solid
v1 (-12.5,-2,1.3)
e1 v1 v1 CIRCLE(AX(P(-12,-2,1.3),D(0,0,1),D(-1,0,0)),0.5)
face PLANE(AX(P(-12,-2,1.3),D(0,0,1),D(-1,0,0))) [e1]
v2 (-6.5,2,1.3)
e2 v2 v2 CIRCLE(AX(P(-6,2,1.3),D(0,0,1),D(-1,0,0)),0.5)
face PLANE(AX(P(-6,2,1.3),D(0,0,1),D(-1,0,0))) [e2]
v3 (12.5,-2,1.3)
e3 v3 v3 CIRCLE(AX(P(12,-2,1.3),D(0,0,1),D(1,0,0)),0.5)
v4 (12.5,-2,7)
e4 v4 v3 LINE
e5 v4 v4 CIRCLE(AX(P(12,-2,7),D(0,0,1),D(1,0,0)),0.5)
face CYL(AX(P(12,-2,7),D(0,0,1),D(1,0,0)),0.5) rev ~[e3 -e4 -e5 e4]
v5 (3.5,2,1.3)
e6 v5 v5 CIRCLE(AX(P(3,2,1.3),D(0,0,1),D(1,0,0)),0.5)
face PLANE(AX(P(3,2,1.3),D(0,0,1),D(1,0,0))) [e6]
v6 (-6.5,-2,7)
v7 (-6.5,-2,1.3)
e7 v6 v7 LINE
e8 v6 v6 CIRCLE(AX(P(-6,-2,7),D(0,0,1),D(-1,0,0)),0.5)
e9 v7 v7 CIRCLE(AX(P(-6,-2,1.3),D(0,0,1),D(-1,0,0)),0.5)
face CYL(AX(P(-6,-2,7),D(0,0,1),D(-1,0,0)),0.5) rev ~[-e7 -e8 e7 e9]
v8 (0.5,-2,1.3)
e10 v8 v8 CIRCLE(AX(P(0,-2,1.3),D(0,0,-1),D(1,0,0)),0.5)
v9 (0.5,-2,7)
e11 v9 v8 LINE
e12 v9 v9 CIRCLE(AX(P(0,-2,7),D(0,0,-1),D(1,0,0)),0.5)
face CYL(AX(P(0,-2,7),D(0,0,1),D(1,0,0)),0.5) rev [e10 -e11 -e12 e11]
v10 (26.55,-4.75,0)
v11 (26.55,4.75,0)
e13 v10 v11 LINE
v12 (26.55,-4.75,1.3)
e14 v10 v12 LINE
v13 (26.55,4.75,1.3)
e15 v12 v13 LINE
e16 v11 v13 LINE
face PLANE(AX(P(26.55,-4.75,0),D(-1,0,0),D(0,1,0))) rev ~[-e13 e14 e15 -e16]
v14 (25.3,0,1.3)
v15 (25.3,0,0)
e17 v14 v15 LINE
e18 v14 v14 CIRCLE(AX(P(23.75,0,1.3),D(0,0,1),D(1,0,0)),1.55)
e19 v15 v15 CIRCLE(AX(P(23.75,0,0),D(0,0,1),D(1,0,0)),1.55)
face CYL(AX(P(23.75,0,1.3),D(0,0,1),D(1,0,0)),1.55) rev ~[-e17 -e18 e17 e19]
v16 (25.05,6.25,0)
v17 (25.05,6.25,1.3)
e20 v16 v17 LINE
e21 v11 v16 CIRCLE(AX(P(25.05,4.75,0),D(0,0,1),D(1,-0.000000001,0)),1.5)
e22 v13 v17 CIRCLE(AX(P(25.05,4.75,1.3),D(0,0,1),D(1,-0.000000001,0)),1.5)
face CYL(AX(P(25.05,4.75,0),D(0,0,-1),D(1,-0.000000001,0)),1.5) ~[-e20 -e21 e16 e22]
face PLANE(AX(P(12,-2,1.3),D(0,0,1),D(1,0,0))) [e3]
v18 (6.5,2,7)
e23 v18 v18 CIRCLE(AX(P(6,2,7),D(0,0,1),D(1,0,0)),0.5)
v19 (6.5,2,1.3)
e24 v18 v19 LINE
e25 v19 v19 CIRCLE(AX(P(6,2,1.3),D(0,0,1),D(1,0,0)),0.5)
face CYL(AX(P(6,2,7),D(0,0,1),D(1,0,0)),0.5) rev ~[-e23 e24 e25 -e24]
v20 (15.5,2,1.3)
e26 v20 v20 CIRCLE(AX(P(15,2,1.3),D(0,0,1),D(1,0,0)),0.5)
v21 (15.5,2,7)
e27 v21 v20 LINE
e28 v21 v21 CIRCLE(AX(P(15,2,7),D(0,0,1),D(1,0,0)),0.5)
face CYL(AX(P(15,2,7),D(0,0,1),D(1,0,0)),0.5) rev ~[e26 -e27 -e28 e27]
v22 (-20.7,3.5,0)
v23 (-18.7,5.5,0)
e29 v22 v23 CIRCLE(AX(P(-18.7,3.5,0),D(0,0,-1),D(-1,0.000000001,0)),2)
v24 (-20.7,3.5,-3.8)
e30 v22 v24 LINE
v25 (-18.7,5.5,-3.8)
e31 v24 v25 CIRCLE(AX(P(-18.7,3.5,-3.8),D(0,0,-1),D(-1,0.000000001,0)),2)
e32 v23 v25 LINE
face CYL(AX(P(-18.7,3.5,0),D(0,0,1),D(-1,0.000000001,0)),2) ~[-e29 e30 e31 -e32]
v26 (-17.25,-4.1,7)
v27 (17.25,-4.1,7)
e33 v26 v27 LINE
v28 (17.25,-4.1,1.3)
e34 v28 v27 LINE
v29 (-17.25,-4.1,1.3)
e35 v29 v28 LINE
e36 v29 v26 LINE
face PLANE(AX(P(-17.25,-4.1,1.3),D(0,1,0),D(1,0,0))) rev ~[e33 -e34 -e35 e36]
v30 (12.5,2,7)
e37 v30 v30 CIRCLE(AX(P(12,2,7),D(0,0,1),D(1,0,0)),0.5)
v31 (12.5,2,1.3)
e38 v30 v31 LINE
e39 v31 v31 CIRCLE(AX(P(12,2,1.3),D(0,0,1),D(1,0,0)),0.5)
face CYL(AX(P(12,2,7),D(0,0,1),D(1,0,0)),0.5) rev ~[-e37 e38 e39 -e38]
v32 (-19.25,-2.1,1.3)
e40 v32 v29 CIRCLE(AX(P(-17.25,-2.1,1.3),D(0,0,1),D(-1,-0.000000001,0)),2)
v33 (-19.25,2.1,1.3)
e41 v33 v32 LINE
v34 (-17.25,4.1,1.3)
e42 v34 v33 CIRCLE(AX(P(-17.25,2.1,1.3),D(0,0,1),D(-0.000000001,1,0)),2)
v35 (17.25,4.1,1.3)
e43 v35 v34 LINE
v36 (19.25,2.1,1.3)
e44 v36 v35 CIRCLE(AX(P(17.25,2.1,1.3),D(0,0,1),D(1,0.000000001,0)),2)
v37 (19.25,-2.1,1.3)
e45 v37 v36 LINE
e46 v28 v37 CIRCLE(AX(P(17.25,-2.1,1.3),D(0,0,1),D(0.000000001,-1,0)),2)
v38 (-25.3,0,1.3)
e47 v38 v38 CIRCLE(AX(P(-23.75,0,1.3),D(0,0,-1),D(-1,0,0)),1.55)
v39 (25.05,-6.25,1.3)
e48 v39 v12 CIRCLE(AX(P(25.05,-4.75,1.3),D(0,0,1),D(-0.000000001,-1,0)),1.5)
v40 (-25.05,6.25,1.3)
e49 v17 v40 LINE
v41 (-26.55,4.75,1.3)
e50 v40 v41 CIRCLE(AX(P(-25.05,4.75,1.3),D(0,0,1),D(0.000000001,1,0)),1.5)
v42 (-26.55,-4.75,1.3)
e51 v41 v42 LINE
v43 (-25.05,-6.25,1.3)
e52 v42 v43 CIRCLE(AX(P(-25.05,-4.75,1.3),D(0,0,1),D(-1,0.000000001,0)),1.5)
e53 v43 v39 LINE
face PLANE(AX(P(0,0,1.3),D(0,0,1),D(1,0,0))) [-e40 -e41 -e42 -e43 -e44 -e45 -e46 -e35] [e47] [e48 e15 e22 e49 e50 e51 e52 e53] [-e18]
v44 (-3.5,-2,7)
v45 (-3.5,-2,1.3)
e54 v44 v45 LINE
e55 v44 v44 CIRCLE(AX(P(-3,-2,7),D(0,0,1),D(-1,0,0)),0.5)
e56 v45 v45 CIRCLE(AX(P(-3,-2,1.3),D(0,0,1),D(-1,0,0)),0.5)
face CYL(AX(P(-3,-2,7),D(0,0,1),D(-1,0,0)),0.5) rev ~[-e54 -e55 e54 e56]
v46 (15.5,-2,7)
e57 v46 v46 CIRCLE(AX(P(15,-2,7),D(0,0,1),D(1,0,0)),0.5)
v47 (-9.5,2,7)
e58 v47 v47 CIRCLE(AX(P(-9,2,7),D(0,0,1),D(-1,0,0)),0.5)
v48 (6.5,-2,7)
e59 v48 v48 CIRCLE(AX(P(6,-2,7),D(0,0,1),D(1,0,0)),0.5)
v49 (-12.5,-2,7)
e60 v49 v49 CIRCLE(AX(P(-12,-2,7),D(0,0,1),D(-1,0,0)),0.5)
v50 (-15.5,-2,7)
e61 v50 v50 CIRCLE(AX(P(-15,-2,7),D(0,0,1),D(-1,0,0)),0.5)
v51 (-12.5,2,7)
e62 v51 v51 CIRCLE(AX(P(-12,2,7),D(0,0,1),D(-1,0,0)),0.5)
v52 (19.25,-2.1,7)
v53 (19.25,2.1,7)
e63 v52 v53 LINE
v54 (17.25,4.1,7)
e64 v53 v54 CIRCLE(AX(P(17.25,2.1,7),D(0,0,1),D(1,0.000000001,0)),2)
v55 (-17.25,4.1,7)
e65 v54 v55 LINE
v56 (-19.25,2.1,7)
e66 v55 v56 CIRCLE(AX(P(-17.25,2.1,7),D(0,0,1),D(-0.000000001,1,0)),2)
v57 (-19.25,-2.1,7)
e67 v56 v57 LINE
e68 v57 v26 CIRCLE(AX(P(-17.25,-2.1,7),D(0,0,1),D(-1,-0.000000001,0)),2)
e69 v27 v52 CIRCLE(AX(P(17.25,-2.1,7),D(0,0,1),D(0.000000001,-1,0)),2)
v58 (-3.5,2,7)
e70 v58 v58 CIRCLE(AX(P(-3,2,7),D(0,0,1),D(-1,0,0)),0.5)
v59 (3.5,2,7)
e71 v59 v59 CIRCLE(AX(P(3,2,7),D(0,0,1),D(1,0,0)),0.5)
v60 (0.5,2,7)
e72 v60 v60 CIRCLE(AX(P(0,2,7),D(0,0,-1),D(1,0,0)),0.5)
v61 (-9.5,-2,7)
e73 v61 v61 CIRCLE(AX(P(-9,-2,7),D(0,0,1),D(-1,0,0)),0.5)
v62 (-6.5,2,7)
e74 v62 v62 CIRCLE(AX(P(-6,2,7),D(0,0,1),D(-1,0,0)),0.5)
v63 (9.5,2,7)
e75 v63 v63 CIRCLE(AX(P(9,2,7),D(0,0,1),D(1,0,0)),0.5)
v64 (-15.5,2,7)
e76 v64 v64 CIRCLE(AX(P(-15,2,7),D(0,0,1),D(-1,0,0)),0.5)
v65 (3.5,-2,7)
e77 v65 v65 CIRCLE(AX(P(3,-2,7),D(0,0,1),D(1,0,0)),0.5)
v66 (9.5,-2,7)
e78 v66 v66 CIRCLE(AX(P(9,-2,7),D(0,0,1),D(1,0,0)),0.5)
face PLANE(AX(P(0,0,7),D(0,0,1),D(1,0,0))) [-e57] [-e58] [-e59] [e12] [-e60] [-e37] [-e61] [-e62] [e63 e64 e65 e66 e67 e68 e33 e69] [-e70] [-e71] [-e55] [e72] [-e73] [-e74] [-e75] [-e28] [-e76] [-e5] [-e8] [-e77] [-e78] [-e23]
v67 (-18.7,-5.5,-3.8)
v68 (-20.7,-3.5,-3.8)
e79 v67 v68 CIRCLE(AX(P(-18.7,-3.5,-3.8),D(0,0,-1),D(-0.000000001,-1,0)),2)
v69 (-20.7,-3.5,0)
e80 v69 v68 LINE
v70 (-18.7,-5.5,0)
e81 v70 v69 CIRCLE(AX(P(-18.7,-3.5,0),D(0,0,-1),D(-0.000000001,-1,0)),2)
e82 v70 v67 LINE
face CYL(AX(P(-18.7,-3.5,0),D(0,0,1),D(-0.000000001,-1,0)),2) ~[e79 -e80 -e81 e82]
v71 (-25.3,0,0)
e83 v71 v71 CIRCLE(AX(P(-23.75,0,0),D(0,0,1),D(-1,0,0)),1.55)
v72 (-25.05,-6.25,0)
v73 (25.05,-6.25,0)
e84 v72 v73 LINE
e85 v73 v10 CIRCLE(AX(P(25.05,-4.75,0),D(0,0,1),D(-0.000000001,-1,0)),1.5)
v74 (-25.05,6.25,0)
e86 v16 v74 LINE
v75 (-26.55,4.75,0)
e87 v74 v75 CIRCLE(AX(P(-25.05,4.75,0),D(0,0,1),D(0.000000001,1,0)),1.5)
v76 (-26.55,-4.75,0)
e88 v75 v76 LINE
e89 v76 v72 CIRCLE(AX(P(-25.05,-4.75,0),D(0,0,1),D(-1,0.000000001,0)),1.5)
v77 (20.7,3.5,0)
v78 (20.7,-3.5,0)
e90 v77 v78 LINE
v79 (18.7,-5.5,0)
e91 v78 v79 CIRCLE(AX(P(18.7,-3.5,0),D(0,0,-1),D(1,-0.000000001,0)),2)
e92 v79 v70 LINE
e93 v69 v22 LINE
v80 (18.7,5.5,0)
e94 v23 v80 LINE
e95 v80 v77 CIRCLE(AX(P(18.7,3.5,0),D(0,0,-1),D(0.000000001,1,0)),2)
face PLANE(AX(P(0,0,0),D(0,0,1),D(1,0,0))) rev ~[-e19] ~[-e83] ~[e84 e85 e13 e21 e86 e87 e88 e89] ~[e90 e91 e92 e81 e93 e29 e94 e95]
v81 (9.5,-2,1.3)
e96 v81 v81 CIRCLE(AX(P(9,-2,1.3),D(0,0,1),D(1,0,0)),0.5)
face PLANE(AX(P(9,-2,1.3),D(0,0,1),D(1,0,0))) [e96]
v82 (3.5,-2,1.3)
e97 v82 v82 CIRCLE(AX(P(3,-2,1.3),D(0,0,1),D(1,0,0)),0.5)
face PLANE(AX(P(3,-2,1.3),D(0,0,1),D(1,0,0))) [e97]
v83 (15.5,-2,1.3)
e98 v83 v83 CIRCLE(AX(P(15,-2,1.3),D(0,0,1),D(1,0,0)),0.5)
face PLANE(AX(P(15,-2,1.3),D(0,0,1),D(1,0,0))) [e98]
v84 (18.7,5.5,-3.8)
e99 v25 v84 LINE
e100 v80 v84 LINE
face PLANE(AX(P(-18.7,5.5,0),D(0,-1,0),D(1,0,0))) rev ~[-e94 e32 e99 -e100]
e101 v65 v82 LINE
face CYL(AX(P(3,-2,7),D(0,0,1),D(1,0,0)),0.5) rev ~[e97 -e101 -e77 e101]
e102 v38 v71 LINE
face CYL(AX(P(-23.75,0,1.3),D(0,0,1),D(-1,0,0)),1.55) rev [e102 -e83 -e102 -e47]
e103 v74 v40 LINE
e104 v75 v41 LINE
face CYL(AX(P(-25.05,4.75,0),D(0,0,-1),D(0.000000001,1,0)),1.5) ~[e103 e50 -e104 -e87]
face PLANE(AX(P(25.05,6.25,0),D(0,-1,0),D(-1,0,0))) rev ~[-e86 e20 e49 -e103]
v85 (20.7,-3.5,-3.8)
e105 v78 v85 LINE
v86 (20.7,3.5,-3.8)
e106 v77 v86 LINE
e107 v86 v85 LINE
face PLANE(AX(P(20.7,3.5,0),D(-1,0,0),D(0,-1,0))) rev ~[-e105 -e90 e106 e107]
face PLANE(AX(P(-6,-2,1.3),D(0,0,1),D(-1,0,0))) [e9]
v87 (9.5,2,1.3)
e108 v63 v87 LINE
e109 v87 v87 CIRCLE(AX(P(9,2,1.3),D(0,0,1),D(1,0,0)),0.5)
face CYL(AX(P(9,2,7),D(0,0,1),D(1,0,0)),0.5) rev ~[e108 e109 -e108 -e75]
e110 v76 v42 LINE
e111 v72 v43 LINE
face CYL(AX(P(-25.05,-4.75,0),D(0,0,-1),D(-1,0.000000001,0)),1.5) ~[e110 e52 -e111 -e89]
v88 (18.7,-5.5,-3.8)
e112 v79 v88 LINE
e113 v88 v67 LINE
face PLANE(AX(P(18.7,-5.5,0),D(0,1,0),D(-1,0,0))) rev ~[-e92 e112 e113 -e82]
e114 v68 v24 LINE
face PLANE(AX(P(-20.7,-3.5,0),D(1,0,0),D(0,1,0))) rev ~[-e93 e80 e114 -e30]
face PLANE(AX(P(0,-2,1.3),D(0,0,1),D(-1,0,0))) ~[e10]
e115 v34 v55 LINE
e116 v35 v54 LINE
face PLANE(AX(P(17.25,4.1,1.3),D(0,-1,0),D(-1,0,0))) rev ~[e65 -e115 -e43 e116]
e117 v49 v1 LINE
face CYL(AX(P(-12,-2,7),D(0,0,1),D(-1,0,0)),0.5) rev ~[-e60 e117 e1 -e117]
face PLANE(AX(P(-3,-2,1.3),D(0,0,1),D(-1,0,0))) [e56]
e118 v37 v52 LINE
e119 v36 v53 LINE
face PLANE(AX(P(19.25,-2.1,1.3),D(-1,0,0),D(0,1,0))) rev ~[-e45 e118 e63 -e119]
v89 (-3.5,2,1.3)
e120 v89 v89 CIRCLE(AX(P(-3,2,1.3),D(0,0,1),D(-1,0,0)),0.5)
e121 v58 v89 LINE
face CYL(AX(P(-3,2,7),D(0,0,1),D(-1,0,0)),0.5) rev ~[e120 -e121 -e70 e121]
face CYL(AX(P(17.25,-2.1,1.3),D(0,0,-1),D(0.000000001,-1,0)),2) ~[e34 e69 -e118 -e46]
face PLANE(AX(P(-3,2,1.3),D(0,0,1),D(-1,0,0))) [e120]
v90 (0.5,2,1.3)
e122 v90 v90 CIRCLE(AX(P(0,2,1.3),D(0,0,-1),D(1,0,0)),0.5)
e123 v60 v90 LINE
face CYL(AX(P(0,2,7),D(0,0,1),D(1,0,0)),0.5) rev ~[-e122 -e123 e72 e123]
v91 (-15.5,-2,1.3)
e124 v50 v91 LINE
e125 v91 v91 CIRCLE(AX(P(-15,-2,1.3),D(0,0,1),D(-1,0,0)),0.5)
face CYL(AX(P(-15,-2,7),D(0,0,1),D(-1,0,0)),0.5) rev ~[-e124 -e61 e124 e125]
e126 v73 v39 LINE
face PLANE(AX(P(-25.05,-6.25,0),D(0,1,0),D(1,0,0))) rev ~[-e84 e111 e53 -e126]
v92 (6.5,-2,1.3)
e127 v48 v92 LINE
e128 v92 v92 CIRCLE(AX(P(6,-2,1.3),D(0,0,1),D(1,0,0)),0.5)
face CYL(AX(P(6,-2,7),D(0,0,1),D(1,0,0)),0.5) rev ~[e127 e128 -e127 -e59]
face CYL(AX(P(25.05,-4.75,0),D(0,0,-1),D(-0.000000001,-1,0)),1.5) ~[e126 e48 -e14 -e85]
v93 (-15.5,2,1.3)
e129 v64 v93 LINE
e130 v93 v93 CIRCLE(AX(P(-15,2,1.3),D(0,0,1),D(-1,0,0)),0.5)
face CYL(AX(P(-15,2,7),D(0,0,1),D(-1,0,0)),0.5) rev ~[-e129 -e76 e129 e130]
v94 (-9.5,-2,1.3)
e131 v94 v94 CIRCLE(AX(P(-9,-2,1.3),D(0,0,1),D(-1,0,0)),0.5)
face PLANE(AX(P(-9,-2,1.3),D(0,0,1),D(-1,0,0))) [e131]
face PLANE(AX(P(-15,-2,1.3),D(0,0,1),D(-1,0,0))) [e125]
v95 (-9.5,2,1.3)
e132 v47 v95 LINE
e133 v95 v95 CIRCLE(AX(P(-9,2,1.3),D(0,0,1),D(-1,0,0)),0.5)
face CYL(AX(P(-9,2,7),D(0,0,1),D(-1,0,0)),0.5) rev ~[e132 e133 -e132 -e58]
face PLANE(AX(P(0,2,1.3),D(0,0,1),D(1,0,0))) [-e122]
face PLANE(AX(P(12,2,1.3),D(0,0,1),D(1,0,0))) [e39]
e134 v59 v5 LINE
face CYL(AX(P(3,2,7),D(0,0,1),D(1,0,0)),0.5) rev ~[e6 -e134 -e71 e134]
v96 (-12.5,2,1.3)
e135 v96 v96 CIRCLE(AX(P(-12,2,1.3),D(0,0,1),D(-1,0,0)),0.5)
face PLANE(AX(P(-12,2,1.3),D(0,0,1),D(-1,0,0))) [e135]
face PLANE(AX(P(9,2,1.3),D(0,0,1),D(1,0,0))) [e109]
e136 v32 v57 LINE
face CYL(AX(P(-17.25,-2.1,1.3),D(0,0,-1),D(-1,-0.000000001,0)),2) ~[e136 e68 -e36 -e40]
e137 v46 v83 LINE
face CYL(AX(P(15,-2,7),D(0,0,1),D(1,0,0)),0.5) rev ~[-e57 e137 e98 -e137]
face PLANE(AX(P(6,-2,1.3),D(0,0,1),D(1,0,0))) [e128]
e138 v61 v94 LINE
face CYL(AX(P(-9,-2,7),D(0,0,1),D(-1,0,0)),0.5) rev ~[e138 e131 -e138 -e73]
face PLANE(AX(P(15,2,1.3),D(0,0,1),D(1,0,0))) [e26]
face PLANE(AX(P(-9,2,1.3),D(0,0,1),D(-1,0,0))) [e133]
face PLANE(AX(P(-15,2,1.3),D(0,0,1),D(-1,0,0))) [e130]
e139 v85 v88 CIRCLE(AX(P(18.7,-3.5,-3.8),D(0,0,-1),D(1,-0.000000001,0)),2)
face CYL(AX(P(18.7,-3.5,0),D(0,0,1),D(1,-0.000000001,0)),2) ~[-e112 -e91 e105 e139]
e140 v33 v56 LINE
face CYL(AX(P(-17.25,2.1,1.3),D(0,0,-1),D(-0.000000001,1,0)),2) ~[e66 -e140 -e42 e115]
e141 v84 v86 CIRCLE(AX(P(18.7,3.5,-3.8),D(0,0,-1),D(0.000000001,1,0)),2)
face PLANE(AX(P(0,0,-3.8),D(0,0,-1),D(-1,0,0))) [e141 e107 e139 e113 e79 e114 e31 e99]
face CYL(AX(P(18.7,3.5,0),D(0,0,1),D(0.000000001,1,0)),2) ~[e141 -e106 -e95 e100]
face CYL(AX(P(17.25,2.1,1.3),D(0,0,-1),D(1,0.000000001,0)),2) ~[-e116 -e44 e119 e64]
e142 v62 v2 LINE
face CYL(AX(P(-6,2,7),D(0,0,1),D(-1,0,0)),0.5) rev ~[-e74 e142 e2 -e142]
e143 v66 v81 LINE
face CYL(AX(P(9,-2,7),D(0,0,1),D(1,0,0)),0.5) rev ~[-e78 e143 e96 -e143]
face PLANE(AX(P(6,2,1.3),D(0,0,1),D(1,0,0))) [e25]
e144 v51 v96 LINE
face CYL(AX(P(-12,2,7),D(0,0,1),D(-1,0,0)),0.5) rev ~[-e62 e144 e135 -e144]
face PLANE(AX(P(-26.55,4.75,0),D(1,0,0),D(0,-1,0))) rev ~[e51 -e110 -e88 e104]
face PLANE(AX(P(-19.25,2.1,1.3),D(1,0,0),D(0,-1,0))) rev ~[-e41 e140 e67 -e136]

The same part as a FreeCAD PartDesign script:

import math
import FreeCAD as App
import Part
import Sketcher
Q = App.Units.Quantity

doc = App.newDocument("Part")
params = doc.addObject("Spreadsheet::Sheet", "Params")
for row, (alias, value) in enumerate([
    ("sketch1_radius", "1.5 mm"),
    ("sketch1_width", "50.1 mm"),
    ("sketch1_height", "9.5 mm"),
    ("pad1_length", "1.3 mm"),
    ("sketch2_radius", "2 mm"),
    ("sketch2_height", "7 mm"),
    ("sketch2_width", "37.4 mm"),
    ("pad2_length", "3.8 mm"),
    ("sketch3_radius", "2 mm"),
    ("sketch3_width", "34.5 mm"),
    ("sketch3_height", "4.2 mm"),
    ("pad3_length", "5.7 mm"),
    ("sketch4_diameter", "1 mm"),
    ("pocket1_length", "5.7 mm"),
    ("linearpattern_pitch", "3 mm"),
    ("sketch5_diameter", "1 mm"),
    ("pocket2_length", "5.7 mm"),
    ("sketch6_diameter", "1 mm"),
    ("pocket3_length", "5.7 mm"),
    ("sketch7_diameter", "1 mm"),
    ("pocket4_length", "5.7 mm"),
    ("sketch8_diameter", "1 mm"),
    ("pocket5_length", "5.7 mm"),
    ("sketch9_diameter", "1 mm"),
    ("pocket6_length", "5.7 mm"),
    ("sketch10_diameter", "1 mm"),
    ("pocket7_length", "5.7 mm"),
    ("sketch11_diameter", "1 mm"),
    ("pocket8_length", "5.7 mm"),
    ("sketch12_diameter", "1 mm"),
    ("pocket9_length", "5.7 mm"),
    ("sketch13_diameter", "1 mm"),
    ("pocket10_length", "5.7 mm"),
    ("sketch14_diameter", "1 mm"),
    ("pocket11_length", "5.7 mm"),
    ("sketch15_diameter", "1 mm"),
    ("pocket12_length", "5.7 mm"),
    ("sketch16_diameter", "1 mm"),
    ("pocket13_length", "5.7 mm"),
    ("sketch17_diameter", "1 mm"),
    ("pocket14_length", "5.7 mm"),
    ("sketch18_diameter", "1 mm"),
    ("pocket15_length", "5.7 mm"),
    ("sketch19_diameter", "1 mm"),
    ("pocket16_length", "5.7 mm"),
    ("sketch20_diameter", "1 mm"),
    ("pocket17_length", "5.7 mm"),
    ("sketch21_diameter", "1 mm"),
    ("pocket18_length", "5.7 mm"),
    ("sketch22_diameter", "1 mm"),
    ("pocket19_length", "5.7 mm"),
    ("sketch23_diameter", "3.1 mm"),
], start=1):
    params.set(f"A{row}", alias)
    params.set(f"B{row}", "=" + value)
    params.setAlias(f"B{row}", alias)

body = doc.addObject("PartDesign::Body", "Body")

# Sketch on XY plane
sketch1 = doc.addObject("Sketcher::SketchObject", "Sketch")
body.addObject(sketch1)
sketch1.AttachmentSupport = (doc.XY_Plane, [""])
sketch1.MapMode = "FlatFace"
sketch1.addGeometry([
    Part.LineSegment(App.Vector(-25.1, -6.2, 0), App.Vector(25.1, -6.2, 0)),  # 0
    Part.ArcOfCircle(Part.Circle(App.Vector(25.1, -4.8, 0), App.Vector(0, 0, 1), 1.5), math.radians(-90), math.radians(0)),  # 1
    Part.LineSegment(App.Vector(26.6, -4.8, 0), App.Vector(26.6, 4.8, 0)),  # 2
    Part.ArcOfCircle(Part.Circle(App.Vector(25.1, 4.8, 0), App.Vector(0, 0, 1), 1.5), math.radians(0), math.radians(90)),  # 3
    Part.LineSegment(App.Vector(25.1, 6.2, 0), App.Vector(-25.1, 6.2, 0)),  # 4
    Part.ArcOfCircle(Part.Circle(App.Vector(-25.1, 4.8, 0), App.Vector(0, 0, 1), 1.5), math.radians(90), math.radians(180)),  # 5
    Part.LineSegment(App.Vector(-26.6, 4.8, 0), App.Vector(-26.6, -4.8, 0)),  # 6
    Part.ArcOfCircle(Part.Circle(App.Vector(-25.1, -4.8, 0), App.Vector(0, 0, 1), 1.5), math.radians(180), math.radians(270)),  # 7
], False)
sketch1.addConstraint([
    Sketcher.Constraint("Tangent", 0, 2, 1, 1),
    Sketcher.Constraint("Tangent", 1, 2, 2, 1),
    Sketcher.Constraint("Tangent", 2, 2, 3, 1),
    Sketcher.Constraint("Tangent", 3, 2, 4, 1),
    Sketcher.Constraint("Tangent", 4, 2, 5, 1),
    Sketcher.Constraint("Tangent", 5, 2, 6, 1),
    Sketcher.Constraint("Tangent", 6, 2, 7, 1),
    Sketcher.Constraint("Tangent", 7, 2, 0, 1),
    Sketcher.Constraint("Horizontal", 0),
    Sketcher.Constraint("Vertical", 2),
    Sketcher.Constraint("Horizontal", 4),
    Sketcher.Constraint("Vertical", 6),
    Sketcher.Constraint("Equal", 1, 3),
    Sketcher.Constraint("Equal", 3, 5),
    Sketcher.Constraint("Equal", 5, 7),
    Sketcher.Constraint("Symmetric", 1, 3, 5, 3, -1, 1),
    Sketcher.Constraint("Radius", 1, Q("1.5 mm")),
    Sketcher.Constraint("DistanceX", 0, 1, 0, 2, Q("50.1 mm")),
    Sketcher.Constraint("DistanceY", 2, 1, 2, 2, Q("9.5 mm")),
])
sketch1.setExpression("Constraints[16]", "Params.sketch1_radius")
sketch1.setExpression("Constraints[17]", "Params.sketch1_width")
sketch1.setExpression("Constraints[18]", "Params.sketch1_height")
pad1 = doc.addObject("PartDesign::Pad", "Pad")
body.addObject(pad1)
pad1.Profile = sketch1
pad1.setExpression("Length", "Params.pad1_length")

# Sketch on XY plane
sketch2 = doc.addObject("Sketcher::SketchObject", "Sketch001")
body.addObject(sketch2)
sketch2.AttachmentSupport = (doc.XY_Plane, [""])
sketch2.MapMode = "FlatFace"
sketch2.addGeometry([
    Part.LineSegment(App.Vector(18.7, -5.5, 0), App.Vector(-18.7, -5.5, 0)),  # 0
    Part.ArcOfCircle(Part.Circle(App.Vector(-18.7, -3.5, 0), App.Vector(0, 0, 1), 2), math.radians(-180), math.radians(-90)),  # 1
    Part.LineSegment(App.Vector(-20.7, -3.5, 0), App.Vector(-20.7, 3.5, 0)),  # 2
    Part.ArcOfCircle(Part.Circle(App.Vector(-18.7, 3.5, 0), App.Vector(0, 0, 1), 2), math.radians(90), math.radians(180)),  # 3
    Part.LineSegment(App.Vector(-18.7, 5.5, 0), App.Vector(18.7, 5.5, 0)),  # 4
    Part.ArcOfCircle(Part.Circle(App.Vector(18.7, 3.5, 0), App.Vector(0, 0, 1), 2), math.radians(0), math.radians(90)),  # 5
    Part.LineSegment(App.Vector(20.7, 3.5, 0), App.Vector(20.7, -3.5, 0)),  # 6
    Part.ArcOfCircle(Part.Circle(App.Vector(18.7, -3.5, 0), App.Vector(0, 0, 1), 2), math.radians(-90), math.radians(0)),  # 7
], False)
sketch2.addConstraint([
    Sketcher.Constraint("Tangent", 0, 2, 1, 2),
    Sketcher.Constraint("Tangent", 1, 1, 2, 1),
    Sketcher.Constraint("Tangent", 2, 2, 3, 2),
    Sketcher.Constraint("Tangent", 3, 1, 4, 1),
    Sketcher.Constraint("Tangent", 4, 2, 5, 2),
    Sketcher.Constraint("Tangent", 5, 1, 6, 1),
    Sketcher.Constraint("Tangent", 6, 2, 7, 2),
    Sketcher.Constraint("Tangent", 7, 1, 0, 1),
    Sketcher.Constraint("Horizontal", 0),
    Sketcher.Constraint("Vertical", 2),
    Sketcher.Constraint("Horizontal", 4),
    Sketcher.Constraint("Vertical", 6),
    Sketcher.Constraint("Equal", 1, 3),
    Sketcher.Constraint("Equal", 3, 5),
    Sketcher.Constraint("Equal", 5, 7),
    Sketcher.Constraint("Symmetric", 1, 3, 5, 3, -1, 1),
    Sketcher.Constraint("Radius", 1, Q("2 mm")),
    Sketcher.Constraint("DistanceY", 2, 1, 2, 2, Q("7 mm")),
    Sketcher.Constraint("DistanceX", 0, 2, 0, 1, Q("37.4 mm")),
])
sketch2.setExpression("Constraints[16]", "Params.sketch2_radius")
sketch2.setExpression("Constraints[17]", "Params.sketch2_height")
sketch2.setExpression("Constraints[18]", "Params.sketch2_width")
pad2 = doc.addObject("PartDesign::Pad", "Pad001")
body.addObject(pad2)
pad2.Profile = sketch2
pad2.setExpression("Length", "Params.pad2_length")
pad2.Reversed = True

# Sketch on XY plane
sketch3 = doc.addObject("Sketcher::SketchObject", "Sketch002")
body.addObject(sketch3)
sketch3.AttachmentSupport = (doc.XY_Plane, [""])
sketch3.MapMode = "FlatFace"
sketch3.AttachmentOffset = App.Placement(App.Vector(0, 0, 1.3), App.Rotation())
sketch3.addGeometry([
    Part.LineSegment(App.Vector(-17.2, -4.1, 0), App.Vector(17.2, -4.1, 0)),  # 0
    Part.ArcOfCircle(Part.Circle(App.Vector(17.2, -2.1, 0), App.Vector(0, 0, 1), 2), math.radians(-90), math.radians(0)),  # 1
    Part.LineSegment(App.Vector(19.2, -2.1, 0), App.Vector(19.2, 2.1, 0)),  # 2
    Part.ArcOfCircle(Part.Circle(App.Vector(17.2, 2.1, 0), App.Vector(0, 0, 1), 2), math.radians(0), math.radians(90)),  # 3
    Part.LineSegment(App.Vector(17.2, 4.1, 0), App.Vector(-17.2, 4.1, 0)),  # 4
    Part.ArcOfCircle(Part.Circle(App.Vector(-17.2, 2.1, 0), App.Vector(0, 0, 1), 2), math.radians(90), math.radians(180)),  # 5
    Part.LineSegment(App.Vector(-19.2, 2.1, 0), App.Vector(-19.2, -2.1, 0)),  # 6
    Part.ArcOfCircle(Part.Circle(App.Vector(-17.2, -2.1, 0), App.Vector(0, 0, 1), 2), math.radians(-180), math.radians(-90)),  # 7
], False)
sketch3.addConstraint([
    Sketcher.Constraint("Tangent", 0, 2, 1, 1),
    Sketcher.Constraint("Tangent", 1, 2, 2, 1),
    Sketcher.Constraint("Tangent", 2, 2, 3, 1),
    Sketcher.Constraint("Tangent", 3, 2, 4, 1),
    Sketcher.Constraint("Tangent", 4, 2, 5, 1),
    Sketcher.Constraint("Tangent", 5, 2, 6, 1),
    Sketcher.Constraint("Tangent", 6, 2, 7, 1),
    Sketcher.Constraint("Tangent", 7, 2, 0, 1),
    Sketcher.Constraint("Horizontal", 0),
    Sketcher.Constraint("Vertical", 2),
    Sketcher.Constraint("Horizontal", 4),
    Sketcher.Constraint("Vertical", 6),
    Sketcher.Constraint("Equal", 1, 3),
    Sketcher.Constraint("Equal", 3, 5),
    Sketcher.Constraint("Equal", 5, 7),
    Sketcher.Constraint("Symmetric", 1, 3, 5, 3, -1, 1),
    Sketcher.Constraint("Radius", 1, Q("2 mm")),
    Sketcher.Constraint("DistanceX", 0, 1, 0, 2, Q("34.5 mm")),
    Sketcher.Constraint("DistanceY", 2, 1, 2, 2, Q("4.2 mm")),
])
sketch3.setExpression("Constraints[16]", "Params.sketch3_radius")
sketch3.setExpression("Constraints[17]", "Params.sketch3_width")
sketch3.setExpression("Constraints[18]", "Params.sketch3_height")
pad3 = doc.addObject("PartDesign::Pad", "Pad002")
body.addObject(pad3)
pad3.Profile = sketch3
pad3.setExpression("Length", "Params.pad3_length")

# Sketch on XY plane
sketch4 = doc.addObject("Sketcher::SketchObject", "Sketch003")
body.addObject(sketch4)
sketch4.AttachmentSupport = (doc.XY_Plane, [""])
sketch4.MapMode = "FlatFace"
sketch4.AttachmentOffset = App.Placement(App.Vector(0, 0, 7), App.Rotation())
sketch4.addGeometry(Part.Circle(App.Vector(0, 2, 0), App.Vector(0, 0, 1), 0.5), False)
sketch4.addConstraint([
    Sketcher.Constraint("PointOnObject", 0, 3, -2),
    Sketcher.Constraint("Diameter", 0, Q("1 mm")),
    Sketcher.Constraint("DistanceY", -1, 1, 0, 3, Q("2 mm")),
])
sketch4.setExpression("Constraints[1]", "Params.sketch4_diameter")
pocket1 = doc.addObject("PartDesign::Pocket", "Pocket")
body.addObject(pocket1)
pocket1.Profile = sketch4
pocket1.setExpression("Length", "Params.pocket1_length")
doc.recompute()

linearpattern = doc.addObject("PartDesign::LinearPattern", "LinearPattern")
body.addObject(linearpattern)
linearpattern.Originals = [pocket1]
linearpattern.Direction = (doc.X_Axis, [""])
linearpattern.Mode = "offset"
linearpattern.setExpression("Offset", "Params.linearpattern_pitch")
linearpattern.Occurrences = 6
body.Tip = linearpattern
doc.recompute()

mirrored = doc.addObject("PartDesign::Mirrored", "Mirrored")
body.addObject(mirrored)
mirrored.Originals = [pocket1]
mirrored.MirrorPlane = (doc.XZ_Plane, [""])
body.Tip = mirrored

# Sketch on XY plane
sketch5 = doc.addObject("Sketcher::SketchObject", "Sketch004")
body.addObject(sketch5)
sketch5.AttachmentSupport = (doc.XY_Plane, [""])
sketch5.MapMode = "FlatFace"
sketch5.AttachmentOffset = App.Placement(App.Vector(0, 0, 7), App.Rotation())
sketch5.addGeometry(Part.Circle(App.Vector(3, -2, 0), App.Vector(0, 0, 1), 0.5), False)
sketch5.addConstraint([
    Sketcher.Constraint("Diameter", 0, Q("1 mm")),
    Sketcher.Constraint("DistanceX", -1, 1, 0, 3, Q("3 mm")),
    Sketcher.Constraint("DistanceY", 0, 3, -1, 1, Q("2 mm")),
])
sketch5.setExpression("Constraints[0]", "Params.sketch5_diameter")
pocket2 = doc.addObject("PartDesign::Pocket", "Pocket001")
body.addObject(pocket2)
pocket2.Profile = sketch5
pocket2.setExpression("Length", "Params.pocket2_length")

# Sketch on XY plane
sketch6 = doc.addObject("Sketcher::SketchObject", "Sketch005")
body.addObject(sketch6)
sketch6.AttachmentSupport = (doc.XY_Plane, [""])
sketch6.MapMode = "FlatFace"
sketch6.AttachmentOffset = App.Placement(App.Vector(0, 0, 7), App.Rotation())
sketch6.addGeometry(Part.Circle(App.Vector(6, -2, 0), App.Vector(0, 0, 1), 0.5), False)
sketch6.addConstraint([
    Sketcher.Constraint("Diameter", 0, Q("1 mm")),
    Sketcher.Constraint("DistanceX", -1, 1, 0, 3, Q("6 mm")),
    Sketcher.Constraint("DistanceY", 0, 3, -1, 1, Q("2 mm")),
])
sketch6.setExpression("Constraints[0]", "Params.sketch6_diameter")
pocket3 = doc.addObject("PartDesign::Pocket", "Pocket002")
body.addObject(pocket3)
pocket3.Profile = sketch6
pocket3.setExpression("Length", "Params.pocket3_length")

# Sketch on XY plane
sketch7 = doc.addObject("Sketcher::SketchObject", "Sketch006")
body.addObject(sketch7)
sketch7.AttachmentSupport = (doc.XY_Plane, [""])
sketch7.MapMode = "FlatFace"
sketch7.AttachmentOffset = App.Placement(App.Vector(0, 0, 7), App.Rotation())
sketch7.addGeometry(Part.Circle(App.Vector(9, -2, 0), App.Vector(0, 0, 1), 0.5), False)
sketch7.addConstraint([
    Sketcher.Constraint("Diameter", 0, Q("1 mm")),
    Sketcher.Constraint("DistanceX", -1, 1, 0, 3, Q("9 mm")),
    Sketcher.Constraint("DistanceY", 0, 3, -1, 1, Q("2 mm")),
])
sketch7.setExpression("Constraints[0]", "Params.sketch7_diameter")
pocket4 = doc.addObject("PartDesign::Pocket", "Pocket003")
body.addObject(pocket4)
pocket4.Profile = sketch7
pocket4.setExpression("Length", "Params.pocket4_length")

# Sketch on XY plane
sketch8 = doc.addObject("Sketcher::SketchObject", "Sketch007")
body.addObject(sketch8)
sketch8.AttachmentSupport = (doc.XY_Plane, [""])
sketch8.MapMode = "FlatFace"
sketch8.AttachmentOffset = App.Placement(App.Vector(0, 0, 7), App.Rotation())
sketch8.addGeometry(Part.Circle(App.Vector(12, -2, 0), App.Vector(0, 0, 1), 0.5), False)
sketch8.addConstraint([
    Sketcher.Constraint("Diameter", 0, Q("1 mm")),
    Sketcher.Constraint("DistanceX", -1, 1, 0, 3, Q("12 mm")),
    Sketcher.Constraint("DistanceY", 0, 3, -1, 1, Q("2 mm")),
])
sketch8.setExpression("Constraints[0]", "Params.sketch8_diameter")
pocket5 = doc.addObject("PartDesign::Pocket", "Pocket004")
body.addObject(pocket5)
pocket5.Profile = sketch8
pocket5.setExpression("Length", "Params.pocket5_length")

# Sketch on XY plane
sketch9 = doc.addObject("Sketcher::SketchObject", "Sketch008")
body.addObject(sketch9)
sketch9.AttachmentSupport = (doc.XY_Plane, [""])
sketch9.MapMode = "FlatFace"
sketch9.AttachmentOffset = App.Placement(App.Vector(0, 0, 7), App.Rotation())
sketch9.addGeometry(Part.Circle(App.Vector(15, -2, 0), App.Vector(0, 0, 1), 0.5), False)
sketch9.addConstraint([
    Sketcher.Constraint("Diameter", 0, Q("1 mm")),
    Sketcher.Constraint("DistanceX", -1, 1, 0, 3, Q("15 mm")),
    Sketcher.Constraint("DistanceY", 0, 3, -1, 1, Q("2 mm")),
])
sketch9.setExpression("Constraints[0]", "Params.sketch9_diameter")
pocket6 = doc.addObject("PartDesign::Pocket", "Pocket005")
body.addObject(pocket6)
pocket6.Profile = sketch9
pocket6.setExpression("Length", "Params.pocket6_length")

# Sketch on XY plane
sketch10 = doc.addObject("Sketcher::SketchObject", "Sketch009")
body.addObject(sketch10)
sketch10.AttachmentSupport = (doc.XY_Plane, [""])
sketch10.MapMode = "FlatFace"
sketch10.AttachmentOffset = App.Placement(App.Vector(0, 0, 7), App.Rotation())
sketch10.addGeometry(Part.Circle(App.Vector(-3, 2, 0), App.Vector(0, 0, 1), 0.5), False)
sketch10.addConstraint([
    Sketcher.Constraint("Diameter", 0, Q("1 mm")),
    Sketcher.Constraint("DistanceX", 0, 3, -1, 1, Q("3 mm")),
    Sketcher.Constraint("DistanceY", -1, 1, 0, 3, Q("2 mm")),
])
sketch10.setExpression("Constraints[0]", "Params.sketch10_diameter")
pocket7 = doc.addObject("PartDesign::Pocket", "Pocket006")
body.addObject(pocket7)
pocket7.Profile = sketch10
pocket7.setExpression("Length", "Params.pocket7_length")

# Sketch on XY plane
sketch11 = doc.addObject("Sketcher::SketchObject", "Sketch010")
body.addObject(sketch11)
sketch11.AttachmentSupport = (doc.XY_Plane, [""])
sketch11.MapMode = "FlatFace"
sketch11.AttachmentOffset = App.Placement(App.Vector(0, 0, 7), App.Rotation())
sketch11.addGeometry(Part.Circle(App.Vector(-6, 2, 0), App.Vector(0, 0, 1), 0.5), False)
sketch11.addConstraint([
    Sketcher.Constraint("Diameter", 0, Q("1 mm")),
    Sketcher.Constraint("DistanceX", 0, 3, -1, 1, Q("6 mm")),
    Sketcher.Constraint("DistanceY", -1, 1, 0, 3, Q("2 mm")),
])
sketch11.setExpression("Constraints[0]", "Params.sketch11_diameter")
pocket8 = doc.addObject("PartDesign::Pocket", "Pocket007")
body.addObject(pocket8)
pocket8.Profile = sketch11
pocket8.setExpression("Length", "Params.pocket8_length")

# Sketch on XY plane
sketch12 = doc.addObject("Sketcher::SketchObject", "Sketch011")
body.addObject(sketch12)
sketch12.AttachmentSupport = (doc.XY_Plane, [""])
sketch12.MapMode = "FlatFace"
sketch12.AttachmentOffset = App.Placement(App.Vector(0, 0, 7), App.Rotation())
sketch12.addGeometry(Part.Circle(App.Vector(-9, 2, 0), App.Vector(0, 0, 1), 0.5), False)
sketch12.addConstraint([
    Sketcher.Constraint("Diameter", 0, Q("1 mm")),
    Sketcher.Constraint("DistanceX", 0, 3, -1, 1, Q("9 mm")),
    Sketcher.Constraint("DistanceY", -1, 1, 0, 3, Q("2 mm")),
])
sketch12.setExpression("Constraints[0]", "Params.sketch12_diameter")
pocket9 = doc.addObject("PartDesign::Pocket", "Pocket008")
body.addObject(pocket9)
pocket9.Profile = sketch12
pocket9.setExpression("Length", "Params.pocket9_length")

# Sketch on XY plane
sketch13 = doc.addObject("Sketcher::SketchObject", "Sketch012")
body.addObject(sketch13)
sketch13.AttachmentSupport = (doc.XY_Plane, [""])
sketch13.MapMode = "FlatFace"
sketch13.AttachmentOffset = App.Placement(App.Vector(0, 0, 7), App.Rotation())
sketch13.addGeometry(Part.Circle(App.Vector(-12, 2, 0), App.Vector(0, 0, 1), 0.5), False)
sketch13.addConstraint([
    Sketcher.Constraint("Diameter", 0, Q("1 mm")),
    Sketcher.Constraint("DistanceX", 0, 3, -1, 1, Q("12 mm")),
    Sketcher.Constraint("DistanceY", -1, 1, 0, 3, Q("2 mm")),
])
sketch13.setExpression("Constraints[0]", "Params.sketch13_diameter")
pocket10 = doc.addObject("PartDesign::Pocket", "Pocket009")
body.addObject(pocket10)
pocket10.Profile = sketch13
pocket10.setExpression("Length", "Params.pocket10_length")

# Sketch on XY plane
sketch14 = doc.addObject("Sketcher::SketchObject", "Sketch013")
body.addObject(sketch14)
sketch14.AttachmentSupport = (doc.XY_Plane, [""])
sketch14.MapMode = "FlatFace"
sketch14.AttachmentOffset = App.Placement(App.Vector(0, 0, 7), App.Rotation())
sketch14.addGeometry(Part.Circle(App.Vector(-15, 2, 0), App.Vector(0, 0, 1), 0.5), False)
sketch14.addConstraint([
    Sketcher.Constraint("Diameter", 0, Q("1 mm")),
    Sketcher.Constraint("DistanceX", 0, 3, -1, 1, Q("15 mm")),
    Sketcher.Constraint("DistanceY", -1, 1, 0, 3, Q("2 mm")),
])
sketch14.setExpression("Constraints[0]", "Params.sketch14_diameter")
pocket11 = doc.addObject("PartDesign::Pocket", "Pocket010")
body.addObject(pocket11)
pocket11.Profile = sketch14
pocket11.setExpression("Length", "Params.pocket11_length")

# Sketch on XY plane
sketch15 = doc.addObject("Sketcher::SketchObject", "Sketch014")
body.addObject(sketch15)
sketch15.AttachmentSupport = (doc.XY_Plane, [""])
sketch15.MapMode = "FlatFace"
sketch15.AttachmentOffset = App.Placement(App.Vector(0, 0, 7), App.Rotation())
sketch15.addGeometry(Part.Circle(App.Vector(0, 2, 0), App.Vector(0, 0, 1), 0.5), False)
sketch15.addConstraint([
    Sketcher.Constraint("PointOnObject", 0, 3, -2),
    Sketcher.Constraint("Diameter", 0, Q("1 mm")),
    Sketcher.Constraint("DistanceY", -1, 1, 0, 3, Q("2 mm")),
])
sketch15.setExpression("Constraints[1]", "Params.sketch15_diameter")
pocket12 = doc.addObject("PartDesign::Pocket", "Pocket011")
body.addObject(pocket12)
pocket12.Profile = sketch15
pocket12.setExpression("Length", "Params.pocket12_length")

# Sketch on XY plane
sketch16 = doc.addObject("Sketcher::SketchObject", "Sketch015")
body.addObject(sketch16)
sketch16.AttachmentSupport = (doc.XY_Plane, [""])
sketch16.MapMode = "FlatFace"
sketch16.AttachmentOffset = App.Placement(App.Vector(0, 0, 7), App.Rotation())
sketch16.addGeometry(Part.Circle(App.Vector(0, -2, 0), App.Vector(0, 0, 1), 0.5), False)
sketch16.addConstraint([
    Sketcher.Constraint("PointOnObject", 0, 3, -2),
    Sketcher.Constraint("Diameter", 0, Q("1 mm")),
    Sketcher.Constraint("DistanceY", 0, 3, -1, 1, Q("2 mm")),
])
sketch16.setExpression("Constraints[1]", "Params.sketch16_diameter")
pocket13 = doc.addObject("PartDesign::Pocket", "Pocket012")
body.addObject(pocket13)
pocket13.Profile = sketch16
pocket13.setExpression("Length", "Params.pocket13_length")

# Sketch on XY plane
sketch17 = doc.addObject("Sketcher::SketchObject", "Sketch016")
body.addObject(sketch17)
sketch17.AttachmentSupport = (doc.XY_Plane, [""])
sketch17.MapMode = "FlatFace"
sketch17.AttachmentOffset = App.Placement(App.Vector(0, 0, 7), App.Rotation())
sketch17.addGeometry(Part.Circle(App.Vector(-3, -2, 0), App.Vector(0, 0, 1), 0.5), False)
sketch17.addConstraint([
    Sketcher.Constraint("Diameter", 0, Q("1 mm")),
    Sketcher.Constraint("DistanceX", 0, 3, -1, 1, Q("3 mm")),
    Sketcher.Constraint("DistanceY", 0, 3, -1, 1, Q("2 mm")),
])
sketch17.setExpression("Constraints[0]", "Params.sketch17_diameter")
pocket14 = doc.addObject("PartDesign::Pocket", "Pocket013")
body.addObject(pocket14)
pocket14.Profile = sketch17
pocket14.setExpression("Length", "Params.pocket14_length")

# Sketch on XY plane
sketch18 = doc.addObject("Sketcher::SketchObject", "Sketch017")
body.addObject(sketch18)
sketch18.AttachmentSupport = (doc.XY_Plane, [""])
sketch18.MapMode = "FlatFace"
sketch18.AttachmentOffset = App.Placement(App.Vector(0, 0, 7), App.Rotation())
sketch18.addGeometry(Part.Circle(App.Vector(-6, -2, 0), App.Vector(0, 0, 1), 0.5), False)
sketch18.addConstraint([
    Sketcher.Constraint("Diameter", 0, Q("1 mm")),
    Sketcher.Constraint("DistanceX", 0, 3, -1, 1, Q("6 mm")),
    Sketcher.Constraint("DistanceY", 0, 3, -1, 1, Q("2 mm")),
])
sketch18.setExpression("Constraints[0]", "Params.sketch18_diameter")
pocket15 = doc.addObject("PartDesign::Pocket", "Pocket014")
body.addObject(pocket15)
pocket15.Profile = sketch18
pocket15.setExpression("Length", "Params.pocket15_length")

# Sketch on XY plane
sketch19 = doc.addObject("Sketcher::SketchObject", "Sketch018")
body.addObject(sketch19)
sketch19.AttachmentSupport = (doc.XY_Plane, [""])
sketch19.MapMode = "FlatFace"
sketch19.AttachmentOffset = App.Placement(App.Vector(0, 0, 7), App.Rotation())
sketch19.addGeometry(Part.Circle(App.Vector(-9, -2, 0), App.Vector(0, 0, 1), 0.5), False)
sketch19.addConstraint([
    Sketcher.Constraint("Diameter", 0, Q("1 mm")),
    Sketcher.Constraint("DistanceX", 0, 3, -1, 1, Q("9 mm")),
    Sketcher.Constraint("DistanceY", 0, 3, -1, 1, Q("2 mm")),
])
sketch19.setExpression("Constraints[0]", "Params.sketch19_diameter")
pocket16 = doc.addObject("PartDesign::Pocket", "Pocket015")
body.addObject(pocket16)
pocket16.Profile = sketch19
pocket16.setExpression("Length", "Params.pocket16_length")

# Sketch on XY plane
sketch20 = doc.addObject("Sketcher::SketchObject", "Sketch019")
body.addObject(sketch20)
sketch20.AttachmentSupport = (doc.XY_Plane, [""])
sketch20.MapMode = "FlatFace"
sketch20.AttachmentOffset = App.Placement(App.Vector(0, 0, 7), App.Rotation())
sketch20.addGeometry(Part.Circle(App.Vector(-12, -2, 0), App.Vector(0, 0, 1), 0.5), False)
sketch20.addConstraint([
    Sketcher.Constraint("Diameter", 0, Q("1 mm")),
    Sketcher.Constraint("DistanceX", 0, 3, -1, 1, Q("12 mm")),
    Sketcher.Constraint("DistanceY", 0, 3, -1, 1, Q("2 mm")),
])
sketch20.setExpression("Constraints[0]", "Params.sketch20_diameter")
pocket17 = doc.addObject("PartDesign::Pocket", "Pocket016")
body.addObject(pocket17)
pocket17.Profile = sketch20
pocket17.setExpression("Length", "Params.pocket17_length")

# Sketch on XY plane
sketch21 = doc.addObject("Sketcher::SketchObject", "Sketch020")
body.addObject(sketch21)
sketch21.AttachmentSupport = (doc.XY_Plane, [""])
sketch21.MapMode = "FlatFace"
sketch21.AttachmentOffset = App.Placement(App.Vector(0, 0, 7), App.Rotation())
sketch21.addGeometry(Part.Circle(App.Vector(-15, -2, 0), App.Vector(0, 0, 1), 0.5), False)
sketch21.addConstraint([
    Sketcher.Constraint("Diameter", 0, Q("1 mm")),
    Sketcher.Constraint("DistanceX", 0, 3, -1, 1, Q("15 mm")),
    Sketcher.Constraint("DistanceY", 0, 3, -1, 1, Q("2 mm")),
])
sketch21.setExpression("Constraints[0]", "Params.sketch21_diameter")
pocket18 = doc.addObject("PartDesign::Pocket", "Pocket017")
body.addObject(pocket18)
pocket18.Profile = sketch21
pocket18.setExpression("Length", "Params.pocket18_length")

# Sketch on XY plane
sketch22 = doc.addObject("Sketcher::SketchObject", "Sketch021")
body.addObject(sketch22)
sketch22.AttachmentSupport = (doc.XY_Plane, [""])
sketch22.MapMode = "FlatFace"
sketch22.AttachmentOffset = App.Placement(App.Vector(0, 0, 7), App.Rotation())
sketch22.addGeometry(Part.Circle(App.Vector(0, 2, 0), App.Vector(0, 0, 1), 0.5), False)
sketch22.addConstraint([
    Sketcher.Constraint("PointOnObject", 0, 3, -2),
    Sketcher.Constraint("Diameter", 0, Q("1 mm")),
    Sketcher.Constraint("DistanceY", -1, 1, 0, 3, Q("2 mm")),
])
sketch22.setExpression("Constraints[1]", "Params.sketch22_diameter")
pocket19 = doc.addObject("PartDesign::Pocket", "Pocket018")
body.addObject(pocket19)
pocket19.Profile = sketch22
pocket19.setExpression("Length", "Params.pocket19_length")

# Sketch on XY plane
sketch23 = doc.addObject("Sketcher::SketchObject", "Sketch022")
body.addObject(sketch23)
sketch23.AttachmentSupport = (doc.XY_Plane, [""])
sketch23.MapMode = "FlatFace"
sketch23.AttachmentOffset = App.Placement(App.Vector(0, 0, 1.3), App.Rotation())
sketch23.addGeometry(Part.Circle(App.Vector(23.8, 0, 0), App.Vector(0, 0, 1), 1.6), False)
sketch23.addConstraint([
    Sketcher.Constraint("PointOnObject", 0, 3, -1),
    Sketcher.Constraint("Diameter", 0, Q("3.1 mm")),
    Sketcher.Constraint("DistanceX", -1, 1, 0, 3, Q("23.75 mm")),
])
sketch23.setExpression("Constraints[1]", "Params.sketch23_diameter")
pocket20 = doc.addObject("PartDesign::Pocket", "Pocket019")
body.addObject(pocket20)
pocket20.Profile = sketch23
pocket20.Type = "ThroughAll"
doc.recompute()

mirrored2 = doc.addObject("PartDesign::Mirrored", "Mirrored001")
body.addObject(mirrored2)
mirrored2.Originals = [pocket20]
mirrored2.MirrorPlane = (doc.YZ_Plane, [""])
body.Tip = mirrored2

doc.recompute()
